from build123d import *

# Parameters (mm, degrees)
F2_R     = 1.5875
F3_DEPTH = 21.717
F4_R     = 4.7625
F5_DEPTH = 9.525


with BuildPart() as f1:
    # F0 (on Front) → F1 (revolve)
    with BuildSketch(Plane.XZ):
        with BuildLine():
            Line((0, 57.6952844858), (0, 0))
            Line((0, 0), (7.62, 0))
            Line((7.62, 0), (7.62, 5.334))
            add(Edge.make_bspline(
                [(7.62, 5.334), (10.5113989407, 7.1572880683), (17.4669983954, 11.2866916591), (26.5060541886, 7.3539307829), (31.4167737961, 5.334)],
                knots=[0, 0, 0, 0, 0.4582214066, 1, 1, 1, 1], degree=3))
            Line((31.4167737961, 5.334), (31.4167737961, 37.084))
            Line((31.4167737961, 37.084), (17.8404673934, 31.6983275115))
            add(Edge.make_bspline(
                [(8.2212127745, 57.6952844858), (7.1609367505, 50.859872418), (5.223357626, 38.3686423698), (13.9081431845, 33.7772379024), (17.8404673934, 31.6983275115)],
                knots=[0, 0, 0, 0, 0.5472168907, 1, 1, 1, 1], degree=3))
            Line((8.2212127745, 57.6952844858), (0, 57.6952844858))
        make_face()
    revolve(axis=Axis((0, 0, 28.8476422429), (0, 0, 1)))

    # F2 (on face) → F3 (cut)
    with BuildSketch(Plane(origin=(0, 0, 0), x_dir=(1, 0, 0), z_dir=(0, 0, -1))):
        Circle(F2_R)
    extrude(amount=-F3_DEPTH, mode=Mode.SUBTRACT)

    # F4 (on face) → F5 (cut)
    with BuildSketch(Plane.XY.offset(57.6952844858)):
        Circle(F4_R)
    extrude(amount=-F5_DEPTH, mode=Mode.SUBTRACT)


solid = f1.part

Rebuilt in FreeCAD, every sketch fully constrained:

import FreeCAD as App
import Part
import Sketcher
from FreeCAD import Vector
Q = App.Units.Quantity

doc = App.newDocument("Part")
params = doc.addObject("Spreadsheet::Sheet", "Params")
for row, (alias, value) in enumerate([
    ("sketch1_height", "1.25 in"),
    ("revolution_angle", "360 deg"),
    ("sketch2_diameter", "0.125 in"),
    ("pocket1_length", "0.855 in"),
    ("sketch3_diameter", "0.375 in"),
    ("pocket2_length", "0.375 in"),
], start=1):
    params.set(f"A{row}", alias)
    params.set(f"B{row}", "=" + value)
    params.setAlias(f"B{row}", alias)

body = doc.addObject("PartDesign::Body", "Body")

# Sketch on XZ plane
sketch1 = doc.addObject("Sketcher::SketchObject", "Sketch")
body.addObject(sketch1)
sketch1.AttachmentSupport = (doc.XZ_Plane, [""])
sketch1.MapMode = "FlatFace"
sketch1.addGeometry(Part.LineSegment(Vector(0, 57.695284, 0), Vector(0, 0, 0)), False)
sketch1.addGeometry(Part.LineSegment(Vector(0, 0, 0), Vector(7.62, 0, 0)), False)
sketch1.addGeometry(Part.LineSegment(Vector(7.62, 0, 0), Vector(7.62, 5.334, 0)), False)
sketch1.addGeometry(Part.BSplineCurve([Vector(7.62, 5.334, 0), Vector(10.511399, 7.157288, 0), Vector(17.466998, 11.286692, 0), Vector(26.506054, 7.353931, 0), Vector(31.416774, 5.334, 0)], [4, 1, 4], [0, 0.458221407, 1], False, 3, [1, 1, 1, 1, 1], False), False)
sketch1.addGeometry(Part.LineSegment(Vector(31.416774, 5.334, 0), Vector(31.416774, 37.084, 0)), False)
sketch1.addGeometry(Part.LineSegment(Vector(31.416774, 37.084, 0), Vector(17.840467, 31.698328, 0)), False)
sketch1.addGeometry(Part.BSplineCurve([Vector(8.221213, 57.695284, 0), Vector(7.160937, 50.859872, 0), Vector(5.223358, 38.368642, 0), Vector(13.908143, 33.777238, 0), Vector(17.840467, 31.698328, 0)], [4, 1, 4], [0, 0.547216891, 1], False, 3, [1, 1, 1, 1, 1], False), False)
sketch1.addGeometry(Part.LineSegment(Vector(8.221213, 57.695284, 0), Vector(0, 57.695284, 0)), False)
sketch1.addConstraint(Sketcher.Constraint("Block", 3))
sketch1.addConstraint(Sketcher.Constraint("Block", 6))
sketch1.addConstraint(Sketcher.Constraint("Coincident", 0, 2, 1, 1))
sketch1.addConstraint(Sketcher.Constraint("Coincident", 1, 2, 2, 1))
sketch1.addConstraint(Sketcher.Constraint("Coincident", 2, 2, 3, 1))
sketch1.addConstraint(Sketcher.Constraint("Coincident", 3, 2, 4, 1))
sketch1.addConstraint(Sketcher.Constraint("Coincident", 4, 2, 5, 1))
sketch1.addConstraint(Sketcher.Constraint("Coincident", 5, 2, 6, 2))
sketch1.addConstraint(Sketcher.Constraint("Coincident", 6, 1, 7, 1))
sketch1.addConstraint(Sketcher.Constraint("Coincident", 7, 2, 0, 1))
sketch1.addConstraint(Sketcher.Constraint("Vertical", 0))
sketch1.addConstraint(Sketcher.Constraint("Horizontal", 1))
sketch1.addConstraint(Sketcher.Constraint("Vertical", 2))
sketch1.addConstraint(Sketcher.Constraint("Vertical", 4))
sketch1.addConstraint(Sketcher.Constraint("Horizontal", 7))
sketch1.addConstraint(Sketcher.Constraint("Coincident", 0, 2, -1, 1))
sketch1.addConstraint(Sketcher.Constraint("DistanceY", 4, 1, 4, 2, Q("1.25 in")))
sketch1.setExpression("Constraints[16]", "Params.sketch1_height")
revolution = doc.addObject("PartDesign::Revolution", "Revolution")
body.addObject(revolution)
revolution.Profile = sketch1
revolution.ReferenceAxis = (sketch1, ["V_Axis"])
revolution.setExpression("Angle", "Params.revolution_angle")

# Sketch on XY plane
sketch2 = doc.addObject("Sketcher::SketchObject", "Sketch001")
body.addObject(sketch2)
sketch2.AttachmentSupport = (doc.XY_Plane, [""])
sketch2.MapMode = "FlatFace"
sketch2.addGeometry(Part.Circle(Vector(0, 0, 0), Vector(0, 0, 1), 1.6), False)
sketch2.addConstraint(Sketcher.Constraint("Coincident", 0, 3, -1, 1))
sketch2.addConstraint(Sketcher.Constraint("Diameter", 0, Q("0.125 in")))
sketch2.setExpression("Constraints[1]", "Params.sketch2_diameter")
pocket1 = doc.addObject("PartDesign::Pocket", "Pocket")
body.addObject(pocket1)
pocket1.Profile = sketch2
pocket1.setExpression("Length", "Params.pocket1_length")
pocket1.Reversed = True

# Sketch on XY plane
sketch3 = doc.addObject("Sketcher::SketchObject", "Sketch002")
body.addObject(sketch3)
sketch3.AttachmentSupport = (doc.XY_Plane, [""])
sketch3.MapMode = "FlatFace"
sketch3.AttachmentOffset = App.Placement(Vector(0, 0, 57.695284), App.Rotation())
sketch3.addGeometry(Part.Circle(Vector(0, 0, 0), Vector(0, 0, 1), 4.8), False)
sketch3.addConstraint(Sketcher.Constraint("Coincident", 0, 3, -1, 1))
sketch3.addConstraint(Sketcher.Constraint("Diameter", 0, Q("0.375 in")))
sketch3.setExpression("Constraints[1]", "Params.sketch3_diameter")
pocket2 = doc.addObject("PartDesign::Pocket", "Pocket001")
body.addObject(pocket2)
pocket2.Profile = sketch3
pocket2.setExpression("Length", "Params.pocket2_length")

doc.recompute()
